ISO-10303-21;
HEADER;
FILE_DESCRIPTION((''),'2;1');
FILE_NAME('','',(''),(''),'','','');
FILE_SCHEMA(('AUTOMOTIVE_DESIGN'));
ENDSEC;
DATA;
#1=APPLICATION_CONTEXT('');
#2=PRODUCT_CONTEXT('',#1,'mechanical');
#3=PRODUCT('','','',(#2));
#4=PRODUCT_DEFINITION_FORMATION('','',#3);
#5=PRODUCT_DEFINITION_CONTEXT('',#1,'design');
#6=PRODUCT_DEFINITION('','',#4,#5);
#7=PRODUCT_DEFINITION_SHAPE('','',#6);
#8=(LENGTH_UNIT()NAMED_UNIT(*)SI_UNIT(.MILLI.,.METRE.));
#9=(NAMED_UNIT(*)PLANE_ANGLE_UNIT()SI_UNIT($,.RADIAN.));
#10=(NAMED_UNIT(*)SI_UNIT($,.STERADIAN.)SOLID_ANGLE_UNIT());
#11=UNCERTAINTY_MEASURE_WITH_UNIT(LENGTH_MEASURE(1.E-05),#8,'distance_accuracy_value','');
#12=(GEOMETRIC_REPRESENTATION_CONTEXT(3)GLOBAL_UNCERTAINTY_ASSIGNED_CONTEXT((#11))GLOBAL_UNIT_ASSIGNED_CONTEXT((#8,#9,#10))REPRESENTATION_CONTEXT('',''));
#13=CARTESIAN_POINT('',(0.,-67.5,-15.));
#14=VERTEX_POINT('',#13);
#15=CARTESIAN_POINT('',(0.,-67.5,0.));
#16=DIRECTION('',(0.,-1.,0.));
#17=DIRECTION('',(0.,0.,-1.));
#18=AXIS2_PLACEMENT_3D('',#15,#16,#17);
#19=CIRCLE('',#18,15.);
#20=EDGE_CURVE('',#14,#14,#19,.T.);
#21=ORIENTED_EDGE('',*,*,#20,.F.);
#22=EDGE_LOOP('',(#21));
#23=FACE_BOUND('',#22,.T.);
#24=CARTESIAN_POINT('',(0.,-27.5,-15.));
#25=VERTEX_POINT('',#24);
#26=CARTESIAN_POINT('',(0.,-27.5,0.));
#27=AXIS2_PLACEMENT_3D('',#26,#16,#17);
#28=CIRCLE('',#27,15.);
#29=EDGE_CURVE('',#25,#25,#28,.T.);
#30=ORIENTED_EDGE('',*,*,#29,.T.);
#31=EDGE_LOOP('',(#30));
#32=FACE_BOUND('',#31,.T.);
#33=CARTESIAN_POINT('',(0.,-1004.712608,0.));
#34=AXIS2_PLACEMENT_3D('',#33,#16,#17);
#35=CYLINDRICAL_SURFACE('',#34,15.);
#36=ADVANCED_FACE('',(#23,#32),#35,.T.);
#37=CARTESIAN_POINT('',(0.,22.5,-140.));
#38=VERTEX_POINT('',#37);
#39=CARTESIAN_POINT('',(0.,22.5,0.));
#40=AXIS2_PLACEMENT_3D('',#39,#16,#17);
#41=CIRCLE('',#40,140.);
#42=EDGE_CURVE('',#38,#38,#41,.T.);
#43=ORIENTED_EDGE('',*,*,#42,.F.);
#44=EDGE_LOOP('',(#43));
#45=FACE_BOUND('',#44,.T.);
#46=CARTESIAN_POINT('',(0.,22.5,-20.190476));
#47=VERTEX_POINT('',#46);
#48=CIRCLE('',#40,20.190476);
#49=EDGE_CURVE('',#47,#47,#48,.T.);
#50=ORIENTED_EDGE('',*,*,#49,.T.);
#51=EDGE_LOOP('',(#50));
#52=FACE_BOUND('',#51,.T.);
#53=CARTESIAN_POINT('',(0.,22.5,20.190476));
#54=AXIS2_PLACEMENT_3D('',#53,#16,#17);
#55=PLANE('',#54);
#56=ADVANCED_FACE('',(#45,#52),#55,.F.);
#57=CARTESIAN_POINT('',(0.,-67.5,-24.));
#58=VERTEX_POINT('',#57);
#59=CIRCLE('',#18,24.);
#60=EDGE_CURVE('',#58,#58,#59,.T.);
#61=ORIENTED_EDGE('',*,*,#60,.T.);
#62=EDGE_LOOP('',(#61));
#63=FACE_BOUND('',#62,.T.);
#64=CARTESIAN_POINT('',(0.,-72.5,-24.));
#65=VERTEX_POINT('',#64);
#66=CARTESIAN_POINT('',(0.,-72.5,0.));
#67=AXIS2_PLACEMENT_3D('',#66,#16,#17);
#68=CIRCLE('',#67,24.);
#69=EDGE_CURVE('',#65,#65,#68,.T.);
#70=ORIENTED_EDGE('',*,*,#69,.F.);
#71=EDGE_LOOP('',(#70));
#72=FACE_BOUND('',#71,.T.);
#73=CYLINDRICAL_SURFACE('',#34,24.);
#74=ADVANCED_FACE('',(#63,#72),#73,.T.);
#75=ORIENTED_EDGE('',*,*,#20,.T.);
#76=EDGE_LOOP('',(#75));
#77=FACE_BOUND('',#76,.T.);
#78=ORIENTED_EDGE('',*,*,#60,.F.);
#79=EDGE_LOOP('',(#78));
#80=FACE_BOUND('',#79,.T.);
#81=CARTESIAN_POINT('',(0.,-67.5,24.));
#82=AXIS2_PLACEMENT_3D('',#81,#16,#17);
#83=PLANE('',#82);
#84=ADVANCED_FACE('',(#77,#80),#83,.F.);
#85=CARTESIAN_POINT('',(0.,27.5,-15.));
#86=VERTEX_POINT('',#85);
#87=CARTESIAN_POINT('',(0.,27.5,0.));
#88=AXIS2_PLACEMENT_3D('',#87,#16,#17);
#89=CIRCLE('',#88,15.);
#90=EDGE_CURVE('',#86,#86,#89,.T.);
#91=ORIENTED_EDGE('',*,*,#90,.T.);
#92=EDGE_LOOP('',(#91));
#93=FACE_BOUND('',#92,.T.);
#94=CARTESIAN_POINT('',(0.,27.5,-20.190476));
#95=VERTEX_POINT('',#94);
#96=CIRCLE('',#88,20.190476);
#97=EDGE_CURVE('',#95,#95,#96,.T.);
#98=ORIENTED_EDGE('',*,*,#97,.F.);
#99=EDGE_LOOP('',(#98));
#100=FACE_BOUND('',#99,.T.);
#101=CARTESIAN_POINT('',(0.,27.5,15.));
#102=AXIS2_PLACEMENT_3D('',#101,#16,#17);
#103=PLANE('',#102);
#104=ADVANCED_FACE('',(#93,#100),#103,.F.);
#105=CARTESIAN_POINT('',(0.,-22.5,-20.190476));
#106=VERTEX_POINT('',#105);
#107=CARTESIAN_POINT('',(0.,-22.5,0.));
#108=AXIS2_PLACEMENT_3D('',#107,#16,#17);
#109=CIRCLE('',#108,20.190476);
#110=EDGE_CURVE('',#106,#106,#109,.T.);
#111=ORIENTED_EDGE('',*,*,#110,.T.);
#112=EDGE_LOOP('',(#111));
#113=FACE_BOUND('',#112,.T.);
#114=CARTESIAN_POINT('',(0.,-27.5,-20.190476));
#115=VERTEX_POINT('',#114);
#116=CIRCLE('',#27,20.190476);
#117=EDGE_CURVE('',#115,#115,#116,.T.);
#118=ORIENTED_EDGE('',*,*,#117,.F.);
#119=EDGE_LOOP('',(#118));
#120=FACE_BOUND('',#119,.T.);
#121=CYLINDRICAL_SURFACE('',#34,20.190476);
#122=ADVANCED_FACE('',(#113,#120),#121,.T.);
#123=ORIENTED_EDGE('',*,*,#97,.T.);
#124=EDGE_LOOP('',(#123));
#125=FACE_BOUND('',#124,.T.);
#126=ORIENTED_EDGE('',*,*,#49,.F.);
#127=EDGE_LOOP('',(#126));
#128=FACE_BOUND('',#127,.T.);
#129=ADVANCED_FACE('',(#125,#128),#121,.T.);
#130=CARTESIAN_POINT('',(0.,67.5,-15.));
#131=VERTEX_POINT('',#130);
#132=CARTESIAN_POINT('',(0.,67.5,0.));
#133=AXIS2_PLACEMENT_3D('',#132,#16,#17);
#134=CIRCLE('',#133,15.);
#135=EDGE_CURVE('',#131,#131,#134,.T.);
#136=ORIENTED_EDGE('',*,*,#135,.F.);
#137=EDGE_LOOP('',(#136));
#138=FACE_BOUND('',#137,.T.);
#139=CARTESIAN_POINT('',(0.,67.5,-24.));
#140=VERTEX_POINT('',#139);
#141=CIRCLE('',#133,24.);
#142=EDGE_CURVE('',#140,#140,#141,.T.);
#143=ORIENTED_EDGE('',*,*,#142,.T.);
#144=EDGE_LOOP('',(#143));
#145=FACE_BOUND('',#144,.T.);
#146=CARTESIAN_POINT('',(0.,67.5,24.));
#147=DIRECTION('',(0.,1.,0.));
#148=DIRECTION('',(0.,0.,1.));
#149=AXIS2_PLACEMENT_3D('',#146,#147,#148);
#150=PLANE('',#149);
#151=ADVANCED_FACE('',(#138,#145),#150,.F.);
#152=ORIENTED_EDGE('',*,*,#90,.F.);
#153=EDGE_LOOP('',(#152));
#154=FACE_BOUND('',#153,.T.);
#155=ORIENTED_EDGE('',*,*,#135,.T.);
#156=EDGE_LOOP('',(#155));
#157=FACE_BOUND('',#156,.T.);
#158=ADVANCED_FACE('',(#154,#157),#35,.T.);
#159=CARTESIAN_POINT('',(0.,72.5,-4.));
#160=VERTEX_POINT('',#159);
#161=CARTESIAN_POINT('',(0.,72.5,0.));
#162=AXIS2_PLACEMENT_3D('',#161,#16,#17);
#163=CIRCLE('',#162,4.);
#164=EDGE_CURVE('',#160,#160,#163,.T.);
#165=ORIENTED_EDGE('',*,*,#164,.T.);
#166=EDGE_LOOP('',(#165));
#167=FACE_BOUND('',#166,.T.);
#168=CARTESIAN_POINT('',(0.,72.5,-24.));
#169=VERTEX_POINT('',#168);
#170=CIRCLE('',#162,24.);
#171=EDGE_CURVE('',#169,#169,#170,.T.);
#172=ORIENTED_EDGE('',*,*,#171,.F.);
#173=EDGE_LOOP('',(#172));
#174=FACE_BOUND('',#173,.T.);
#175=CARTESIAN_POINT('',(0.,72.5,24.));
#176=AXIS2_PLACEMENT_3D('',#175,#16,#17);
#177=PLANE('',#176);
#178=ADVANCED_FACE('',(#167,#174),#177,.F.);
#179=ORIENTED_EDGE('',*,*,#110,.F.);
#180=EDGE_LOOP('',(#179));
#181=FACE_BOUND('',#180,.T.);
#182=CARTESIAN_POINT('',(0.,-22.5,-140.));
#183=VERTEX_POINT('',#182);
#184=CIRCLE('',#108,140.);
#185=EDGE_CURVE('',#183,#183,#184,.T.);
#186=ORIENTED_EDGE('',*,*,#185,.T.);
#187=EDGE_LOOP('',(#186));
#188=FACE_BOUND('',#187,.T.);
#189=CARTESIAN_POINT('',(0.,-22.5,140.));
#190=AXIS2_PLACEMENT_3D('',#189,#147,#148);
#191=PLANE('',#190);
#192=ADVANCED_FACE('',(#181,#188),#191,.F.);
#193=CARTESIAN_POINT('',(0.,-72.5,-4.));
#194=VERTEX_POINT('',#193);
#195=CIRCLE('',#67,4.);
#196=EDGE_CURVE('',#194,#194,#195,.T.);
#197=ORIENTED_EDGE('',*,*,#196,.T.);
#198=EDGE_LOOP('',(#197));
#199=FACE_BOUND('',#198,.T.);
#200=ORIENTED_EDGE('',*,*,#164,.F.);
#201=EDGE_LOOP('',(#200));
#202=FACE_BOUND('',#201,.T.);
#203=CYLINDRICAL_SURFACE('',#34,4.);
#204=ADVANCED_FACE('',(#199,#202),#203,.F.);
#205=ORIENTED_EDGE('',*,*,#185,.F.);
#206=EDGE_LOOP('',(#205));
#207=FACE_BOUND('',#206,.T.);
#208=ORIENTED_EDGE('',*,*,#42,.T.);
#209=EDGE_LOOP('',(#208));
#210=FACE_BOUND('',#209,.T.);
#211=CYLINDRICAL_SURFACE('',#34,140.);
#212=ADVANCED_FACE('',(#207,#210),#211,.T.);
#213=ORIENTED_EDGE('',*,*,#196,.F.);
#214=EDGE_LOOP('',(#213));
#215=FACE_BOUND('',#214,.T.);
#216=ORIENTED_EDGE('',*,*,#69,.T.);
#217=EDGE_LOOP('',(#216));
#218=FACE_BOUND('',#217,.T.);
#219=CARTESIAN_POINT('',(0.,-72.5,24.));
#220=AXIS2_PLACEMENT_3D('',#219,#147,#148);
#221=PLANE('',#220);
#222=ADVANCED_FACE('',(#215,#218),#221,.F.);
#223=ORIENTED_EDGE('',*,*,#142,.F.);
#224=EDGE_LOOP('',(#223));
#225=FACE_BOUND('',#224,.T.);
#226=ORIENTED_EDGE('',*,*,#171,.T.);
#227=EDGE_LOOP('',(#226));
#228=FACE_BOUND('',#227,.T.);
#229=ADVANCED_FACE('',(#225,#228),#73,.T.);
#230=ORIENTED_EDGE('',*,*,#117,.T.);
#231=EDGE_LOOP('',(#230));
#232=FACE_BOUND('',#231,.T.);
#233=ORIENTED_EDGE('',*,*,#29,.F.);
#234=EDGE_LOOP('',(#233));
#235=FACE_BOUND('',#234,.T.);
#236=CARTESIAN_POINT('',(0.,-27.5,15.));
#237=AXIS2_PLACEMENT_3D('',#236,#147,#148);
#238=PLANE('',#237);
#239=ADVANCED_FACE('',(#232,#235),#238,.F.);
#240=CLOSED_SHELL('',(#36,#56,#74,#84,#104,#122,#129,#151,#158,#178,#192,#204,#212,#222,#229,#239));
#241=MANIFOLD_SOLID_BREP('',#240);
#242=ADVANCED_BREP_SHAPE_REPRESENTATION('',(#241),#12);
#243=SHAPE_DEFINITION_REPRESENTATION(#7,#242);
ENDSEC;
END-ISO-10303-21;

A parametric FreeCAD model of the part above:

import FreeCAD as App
import Part
import Sketcher

V = App.Vector
Q = App.Units.Quantity


def add_polygon(sketch, points):
    """Adds a closed chain of lines whose ends are joined by coincident constraints."""
    first, n = sketch.GeometryCount, len(points)
    for a, b in zip(points, points[1:] + points[:1]):
        sketch.addGeometry(Part.LineSegment(App.Vector(*a, 0), App.Vector(*b, 0)), False)
    for i in range(n):
        sketch.addConstraint(Sketcher.Constraint("Coincident", first + i, 2, first + (i + 1) % n, 1))

doc = App.newDocument("Part")
body = doc.addObject("PartDesign::Body", "Body")

# Sketch on YZ plane
sketch1 = body.newObject("Sketcher::SketchObject", "Sketch")
sketch1.AttachmentSupport = (doc.getObject("YZ_Plane"), [""])
sketch1.MapMode = "FlatFace"
add_polygon(sketch1, [(72.5, 24), (67.5, 24), (67.5, 15), (27.5, 15), (27.5, 20.190476), (22.5, 20.190476), (22.5, 140), (-22.5, 140), (-22.5, 20.190476), (-27.5, 20.190476), (-27.5, 15), (-67.5, 15), (-67.5, 24), (-72.5, 24), (-72.5, 4), (72.5, 4)])  # lines 0-15
sketch1.addConstraint(Sketcher.Constraint("Horizontal", 0))
sketch1.addConstraint(Sketcher.Constraint("Vertical", 1))
sketch1.addConstraint(Sketcher.Constraint("Horizontal", 2))
sketch1.addConstraint(Sketcher.Constraint("Vertical", 3))
sketch1.addConstraint(Sketcher.Constraint("Horizontal", 4))
sketch1.addConstraint(Sketcher.Constraint("Vertical", 5))
sketch1.addConstraint(Sketcher.Constraint("Horizontal", 6))
sketch1.addConstraint(Sketcher.Constraint("Vertical", 7))
sketch1.addConstraint(Sketcher.Constraint("Horizontal", 8))
sketch1.addConstraint(Sketcher.Constraint("Vertical", 9))
sketch1.addConstraint(Sketcher.Constraint("Horizontal", 10))
sketch1.addConstraint(Sketcher.Constraint("Vertical", 11))
sketch1.addConstraint(Sketcher.Constraint("Horizontal", 12))
sketch1.addConstraint(Sketcher.Constraint("Vertical", 13))
sketch1.addConstraint(Sketcher.Constraint("Horizontal", 14))
sketch1.addConstraint(Sketcher.Constraint("Vertical", 15))
sketch1.addConstraint(Sketcher.Constraint("Symmetric", 4, 2, 7, 2, -2))
sketch1.addConstraint(Sketcher.Constraint("Symmetric", 2, 2, 9, 2, -2))
sketch1.addConstraint(Sketcher.Constraint("Symmetric", 0, 2, 11, 2, -2))
sketch1.addConstraint(Sketcher.Constraint("Equal", 0, 4))
sketch1.addConstraint(Sketcher.Constraint("Equal", 8, 12))
sketch1.addConstraint(Sketcher.Constraint("DistanceX", 0, 2, 0, 1, Q("5 mm")))
sketch1.addConstraint(Sketcher.Constraint("DistanceX", 2, 2, 2, 1, Q("40 mm")))
sketch1.addConstraint(Sketcher.Constraint("DistanceX", 6, 2, 6, 1, Q("45 mm")))
sketch1.addConstraint(Sketcher.Constraint("DistanceY", 1, 2, 1, 1, Q("9 mm")))
sketch1.addConstraint(Sketcher.Constraint("DistanceY", 13, 2, 13, 1, Q("20 mm")))
sketch1.addConstraint(Sketcher.Constraint("DistanceY", -1, 1, 0, 2, Q("24 mm")))
sketch1.addConstraint(Sketcher.Constraint("DistanceY", -1, 1, 5, 2, Q("140 mm")))
sketch1.addConstraint(Sketcher.Constraint("DistanceY", 3, 1, 3, 2, Q("5.190476 mm")))
revolution = body.newObject("PartDesign::Revolution", "Revolution")
revolution.Profile = sketch1
revolution.ReferenceAxis = (sketch1, ["H_Axis"])
revolution.Angle = 360

doc.recompute()
